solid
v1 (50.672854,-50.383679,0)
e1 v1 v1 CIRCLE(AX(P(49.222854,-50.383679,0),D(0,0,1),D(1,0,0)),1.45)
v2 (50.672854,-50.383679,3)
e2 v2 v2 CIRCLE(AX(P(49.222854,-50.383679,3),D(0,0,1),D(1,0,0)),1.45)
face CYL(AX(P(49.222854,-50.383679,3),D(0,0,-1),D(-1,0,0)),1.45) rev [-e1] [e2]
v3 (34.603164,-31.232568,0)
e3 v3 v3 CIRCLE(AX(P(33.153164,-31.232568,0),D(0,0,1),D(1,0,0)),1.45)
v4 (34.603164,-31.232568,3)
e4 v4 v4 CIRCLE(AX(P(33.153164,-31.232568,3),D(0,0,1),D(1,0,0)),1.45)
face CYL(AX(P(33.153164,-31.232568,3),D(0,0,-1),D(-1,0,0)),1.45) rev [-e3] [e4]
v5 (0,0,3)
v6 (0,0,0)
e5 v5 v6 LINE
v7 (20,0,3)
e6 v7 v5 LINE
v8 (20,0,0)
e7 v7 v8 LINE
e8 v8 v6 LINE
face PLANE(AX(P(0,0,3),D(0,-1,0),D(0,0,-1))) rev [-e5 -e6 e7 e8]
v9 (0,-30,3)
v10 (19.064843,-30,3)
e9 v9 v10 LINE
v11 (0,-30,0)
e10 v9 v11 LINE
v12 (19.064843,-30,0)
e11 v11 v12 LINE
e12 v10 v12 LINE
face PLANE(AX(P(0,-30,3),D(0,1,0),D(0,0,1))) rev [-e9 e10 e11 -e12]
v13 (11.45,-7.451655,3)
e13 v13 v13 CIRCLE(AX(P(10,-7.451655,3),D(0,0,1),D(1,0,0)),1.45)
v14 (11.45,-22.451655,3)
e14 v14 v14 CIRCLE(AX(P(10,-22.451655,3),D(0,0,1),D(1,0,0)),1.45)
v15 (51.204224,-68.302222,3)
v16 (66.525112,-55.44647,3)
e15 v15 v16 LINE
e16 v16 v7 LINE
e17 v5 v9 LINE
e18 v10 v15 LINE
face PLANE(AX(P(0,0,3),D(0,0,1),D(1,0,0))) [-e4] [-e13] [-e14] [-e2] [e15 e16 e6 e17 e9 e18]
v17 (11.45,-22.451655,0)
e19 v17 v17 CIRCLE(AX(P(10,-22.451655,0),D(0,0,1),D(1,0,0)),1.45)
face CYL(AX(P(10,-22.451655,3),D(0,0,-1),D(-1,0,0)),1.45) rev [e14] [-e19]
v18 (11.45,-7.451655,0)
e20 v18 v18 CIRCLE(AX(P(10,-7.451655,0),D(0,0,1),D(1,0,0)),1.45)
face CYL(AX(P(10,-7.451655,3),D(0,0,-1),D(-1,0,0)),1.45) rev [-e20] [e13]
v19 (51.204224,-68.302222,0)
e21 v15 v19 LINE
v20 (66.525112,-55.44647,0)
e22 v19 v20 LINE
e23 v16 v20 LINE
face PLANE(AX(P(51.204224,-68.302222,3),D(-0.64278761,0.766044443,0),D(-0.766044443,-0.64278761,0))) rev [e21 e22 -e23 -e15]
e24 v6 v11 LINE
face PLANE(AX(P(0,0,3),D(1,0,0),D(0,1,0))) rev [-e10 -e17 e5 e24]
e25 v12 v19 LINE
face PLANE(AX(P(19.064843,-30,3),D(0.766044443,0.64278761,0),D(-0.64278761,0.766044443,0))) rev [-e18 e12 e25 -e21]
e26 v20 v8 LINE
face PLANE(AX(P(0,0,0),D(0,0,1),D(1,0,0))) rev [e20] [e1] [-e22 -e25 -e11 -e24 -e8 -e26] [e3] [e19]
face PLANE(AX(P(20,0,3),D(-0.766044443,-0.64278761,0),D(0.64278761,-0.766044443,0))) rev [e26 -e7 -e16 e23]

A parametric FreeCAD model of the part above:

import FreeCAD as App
import Part
import Sketcher
Q = App.Units.Quantity

doc = App.newDocument("Part")
params = doc.addObject("Spreadsheet::Sheet", "Params")
for row, (alias, value) in enumerate([
    ("sketch1_diameter", "2.9 mm"),
    ("sketch1_width", "20 mm"),
    ("sketch1_height", "30 mm"),
    ("sketch1_length", "50 mm"),
    ("sketch1_length2", "20 mm"),
    ("pad1_length", "3 mm"),
], start=1):
    params.set(f"A{row}", alias)
    params.set(f"B{row}", "=" + value)
    params.setAlias(f"B{row}", alias)

body = doc.addObject("PartDesign::Body", "Body")

# Sketch on XY plane
sketch1 = body.newObject("Sketcher::SketchObject", "Sketch")
sketch1.AttachmentSupport = (doc.getObject("XY_Plane"), [""])
sketch1.MapMode = "FlatFace"
sketch1.addGeometry([
    Part.LineSegment(App.Vector(66.525112, -55.44647, 0), App.Vector(20, 0, 0)),  # 0
    Part.LineSegment(App.Vector(20, 0, 0), App.Vector(0, 0, 0)),  # 1
    Part.LineSegment(App.Vector(0, 0, 0), App.Vector(0, -30, 0)),  # 2
    Part.LineSegment(App.Vector(0, -30, 0), App.Vector(19.064843, -30, 0)),  # 3
    Part.LineSegment(App.Vector(19.064843, -30, 0), App.Vector(51.204224, -68.302222, 0)),  # 4
    Part.LineSegment(App.Vector(51.204224, -68.302222, 0), App.Vector(66.525112, -55.44647, 0)),  # 5
    Part.Circle(App.Vector(49.222854, -50.383679, 0), App.Vector(0, 0, 1), 1.45),  # 6
    Part.Circle(App.Vector(33.153164, -31.232568, 0), App.Vector(0, 0, 1), 1.45),  # 7
    Part.Circle(App.Vector(10, -22.451655, 0), App.Vector(0, 0, 1), 1.45),  # 8
    Part.Circle(App.Vector(10, -7.451655, 0), App.Vector(0, 0, 1), 1.45),  # 9
], False)
sketch1.addConstraint([
    Sketcher.Constraint("Coincident", 0, 2, 1, 1),
    Sketcher.Constraint("Coincident", 1, 2, 2, 1),
    Sketcher.Constraint("Coincident", 2, 2, 3, 1),
    Sketcher.Constraint("Coincident", 3, 2, 4, 1),
    Sketcher.Constraint("Coincident", 4, 2, 5, 1),
    Sketcher.Constraint("Coincident", 5, 2, 0, 1),
    Sketcher.Constraint("Horizontal", 1),
    Sketcher.Constraint("Vertical", 2),
    Sketcher.Constraint("Horizontal", 3),
    Sketcher.Constraint("Coincident", 1, 2, -1, 1),
    Sketcher.Constraint("Equal", 6, 7),
    Sketcher.Constraint("Equal", 7, 8),
    Sketcher.Constraint("Equal", 8, 9),
    Sketcher.Constraint("Parallel", 0, 4),
    Sketcher.Constraint("Perpendicular", 4, 5),
    Sketcher.Constraint("Vertical", 8, 3, 9, 3),
    Sketcher.Constraint("Diameter", 6, Q("2.9 mm")),
    Sketcher.Constraint("DistanceX", 1, 2, 1, 1, Q("20 mm")),
    Sketcher.Constraint("DistanceY", 2, 2, 2, 1, Q("30 mm")),
    Sketcher.Constraint("Angle", 0, Q("130 deg")),
    Sketcher.Constraint("Distance", 4, Q("50 mm")),
    Sketcher.Constraint("Distance", 5, Q("20 mm")),
    Sketcher.Constraint("DistanceX", -1, 1, 8, 3, Q("10 mm")),
    Sketcher.Constraint("DistanceY", 8, 3, 9, 3, Q("15 mm")),
    Sketcher.Constraint("DistanceY", 5, 2, 7, 3, Q("24.213902 mm")),
    Sketcher.Constraint("DistanceY", 6, 3, -1, 1, Q("50.383679 mm")),
    Sketcher.Constraint("DistanceX", 7, 3, 6, 3, Q("16.06969 mm")),
    Sketcher.Constraint("DistanceX", 3, 2, 7, 3, Q("14.088321 mm")),
    Sketcher.Constraint("DistanceY", 8, 3, -1, 1, Q("22.451655 mm")),
])
sketch1.setExpression("Constraints[16]", "Params.sketch1_diameter")
sketch1.setExpression("Constraints[17]", "Params.sketch1_width")
sketch1.setExpression("Constraints[18]", "Params.sketch1_height")
sketch1.setExpression("Constraints[20]", "Params.sketch1_length")
sketch1.setExpression("Constraints[21]", "Params.sketch1_length2")
pad1 = body.newObject("PartDesign::Pad", "Pad")
pad1.Profile = sketch1
pad1.setExpression("Length", "Params.pad1_length")

doc.recompute()
